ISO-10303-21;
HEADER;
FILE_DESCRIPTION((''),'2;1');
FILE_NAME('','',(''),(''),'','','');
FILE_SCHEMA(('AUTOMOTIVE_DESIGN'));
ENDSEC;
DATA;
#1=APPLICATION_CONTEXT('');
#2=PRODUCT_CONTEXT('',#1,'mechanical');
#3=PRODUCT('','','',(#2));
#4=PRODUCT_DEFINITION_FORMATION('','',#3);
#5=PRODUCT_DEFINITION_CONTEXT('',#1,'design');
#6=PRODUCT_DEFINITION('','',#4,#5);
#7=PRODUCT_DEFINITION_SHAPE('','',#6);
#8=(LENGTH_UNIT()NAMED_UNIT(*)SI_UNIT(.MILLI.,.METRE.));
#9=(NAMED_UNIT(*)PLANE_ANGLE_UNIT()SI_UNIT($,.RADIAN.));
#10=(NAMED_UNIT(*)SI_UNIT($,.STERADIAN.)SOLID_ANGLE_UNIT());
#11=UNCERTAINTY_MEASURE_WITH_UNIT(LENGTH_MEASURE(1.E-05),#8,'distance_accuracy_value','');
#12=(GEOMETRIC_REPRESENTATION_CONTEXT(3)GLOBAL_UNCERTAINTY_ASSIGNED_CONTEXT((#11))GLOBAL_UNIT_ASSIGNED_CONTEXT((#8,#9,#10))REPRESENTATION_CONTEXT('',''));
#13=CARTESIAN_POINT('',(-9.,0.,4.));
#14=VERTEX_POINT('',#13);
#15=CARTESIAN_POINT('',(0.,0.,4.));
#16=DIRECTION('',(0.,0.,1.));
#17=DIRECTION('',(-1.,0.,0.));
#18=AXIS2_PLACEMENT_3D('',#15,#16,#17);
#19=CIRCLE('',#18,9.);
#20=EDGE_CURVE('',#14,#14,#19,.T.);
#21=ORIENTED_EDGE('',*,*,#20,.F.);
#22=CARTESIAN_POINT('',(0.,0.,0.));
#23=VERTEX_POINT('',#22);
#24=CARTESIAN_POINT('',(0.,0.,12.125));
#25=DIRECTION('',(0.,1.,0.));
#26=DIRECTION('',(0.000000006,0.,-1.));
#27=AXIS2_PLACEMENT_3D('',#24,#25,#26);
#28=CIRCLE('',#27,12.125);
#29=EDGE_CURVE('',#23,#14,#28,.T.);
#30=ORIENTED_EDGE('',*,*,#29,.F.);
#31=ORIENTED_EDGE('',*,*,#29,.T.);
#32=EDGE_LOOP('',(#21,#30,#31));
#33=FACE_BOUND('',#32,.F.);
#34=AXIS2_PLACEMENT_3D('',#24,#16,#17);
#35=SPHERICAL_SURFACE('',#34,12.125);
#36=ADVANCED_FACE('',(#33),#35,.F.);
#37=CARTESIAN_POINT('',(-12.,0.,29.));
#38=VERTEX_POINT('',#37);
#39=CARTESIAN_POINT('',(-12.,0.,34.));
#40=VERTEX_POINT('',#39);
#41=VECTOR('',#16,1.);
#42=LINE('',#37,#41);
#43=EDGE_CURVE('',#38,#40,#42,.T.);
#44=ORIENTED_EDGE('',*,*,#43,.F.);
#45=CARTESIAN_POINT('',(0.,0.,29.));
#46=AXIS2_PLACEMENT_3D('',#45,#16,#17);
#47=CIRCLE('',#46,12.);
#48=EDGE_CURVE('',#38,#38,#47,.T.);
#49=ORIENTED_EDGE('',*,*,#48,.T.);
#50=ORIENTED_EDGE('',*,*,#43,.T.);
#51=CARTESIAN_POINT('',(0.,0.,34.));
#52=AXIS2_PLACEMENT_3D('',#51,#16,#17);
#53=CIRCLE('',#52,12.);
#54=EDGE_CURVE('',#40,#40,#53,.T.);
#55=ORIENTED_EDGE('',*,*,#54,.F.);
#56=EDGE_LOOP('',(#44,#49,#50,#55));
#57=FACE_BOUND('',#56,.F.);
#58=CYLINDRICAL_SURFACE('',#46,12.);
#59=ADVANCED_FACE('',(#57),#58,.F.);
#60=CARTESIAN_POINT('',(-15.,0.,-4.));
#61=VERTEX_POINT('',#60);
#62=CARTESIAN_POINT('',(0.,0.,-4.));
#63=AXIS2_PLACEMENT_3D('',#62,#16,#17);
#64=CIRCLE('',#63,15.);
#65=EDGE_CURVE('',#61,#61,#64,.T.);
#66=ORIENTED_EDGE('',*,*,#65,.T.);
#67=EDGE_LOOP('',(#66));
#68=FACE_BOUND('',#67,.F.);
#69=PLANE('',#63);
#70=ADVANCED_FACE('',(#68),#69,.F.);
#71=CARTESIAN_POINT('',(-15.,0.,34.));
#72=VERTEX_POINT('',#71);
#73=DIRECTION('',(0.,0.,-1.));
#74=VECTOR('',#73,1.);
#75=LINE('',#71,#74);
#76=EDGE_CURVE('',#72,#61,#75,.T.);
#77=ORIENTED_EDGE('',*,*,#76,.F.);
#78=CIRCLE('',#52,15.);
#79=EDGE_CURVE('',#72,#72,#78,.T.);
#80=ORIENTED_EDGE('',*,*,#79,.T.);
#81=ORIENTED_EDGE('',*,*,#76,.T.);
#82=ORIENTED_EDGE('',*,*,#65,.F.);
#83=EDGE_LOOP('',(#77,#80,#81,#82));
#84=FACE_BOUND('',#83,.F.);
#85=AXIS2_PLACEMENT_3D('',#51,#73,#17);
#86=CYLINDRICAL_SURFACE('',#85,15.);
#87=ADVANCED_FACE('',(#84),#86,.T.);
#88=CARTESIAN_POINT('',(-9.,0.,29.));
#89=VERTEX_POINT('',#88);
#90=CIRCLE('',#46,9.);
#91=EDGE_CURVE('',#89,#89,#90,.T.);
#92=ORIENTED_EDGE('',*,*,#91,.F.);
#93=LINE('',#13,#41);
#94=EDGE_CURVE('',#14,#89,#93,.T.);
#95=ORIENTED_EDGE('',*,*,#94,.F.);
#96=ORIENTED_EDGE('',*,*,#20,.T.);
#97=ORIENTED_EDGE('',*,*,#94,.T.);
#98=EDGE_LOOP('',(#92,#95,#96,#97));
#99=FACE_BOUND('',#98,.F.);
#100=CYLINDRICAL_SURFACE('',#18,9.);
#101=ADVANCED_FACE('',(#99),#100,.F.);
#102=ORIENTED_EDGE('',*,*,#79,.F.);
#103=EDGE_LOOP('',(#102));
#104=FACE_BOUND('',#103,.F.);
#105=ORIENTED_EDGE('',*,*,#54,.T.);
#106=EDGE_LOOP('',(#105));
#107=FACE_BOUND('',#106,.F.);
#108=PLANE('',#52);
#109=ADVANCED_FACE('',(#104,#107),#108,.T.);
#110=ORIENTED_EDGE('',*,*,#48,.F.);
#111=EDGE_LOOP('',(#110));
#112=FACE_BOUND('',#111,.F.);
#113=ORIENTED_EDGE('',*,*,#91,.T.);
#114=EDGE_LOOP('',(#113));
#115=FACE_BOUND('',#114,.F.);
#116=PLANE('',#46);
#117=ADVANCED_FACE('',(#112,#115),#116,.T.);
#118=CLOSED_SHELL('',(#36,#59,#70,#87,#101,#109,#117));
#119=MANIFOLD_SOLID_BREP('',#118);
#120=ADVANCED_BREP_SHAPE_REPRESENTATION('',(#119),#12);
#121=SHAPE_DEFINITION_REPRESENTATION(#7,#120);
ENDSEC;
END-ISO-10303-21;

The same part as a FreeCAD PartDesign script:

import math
import FreeCAD as App
import Part
import Sketcher

doc = App.newDocument("Part")
body = doc.addObject("PartDesign::Body", "Body")

# Sketch on XZ plane
sketch1 = doc.addObject("Sketcher::SketchObject", "Sketch")
body.addObject(sketch1)
sketch1.AttachmentSupport = (doc.XZ_Plane, [""])
sketch1.MapMode = "FlatFace"
sketch1.addGeometry(Part.LineSegment(App.Vector(-15, -4, 0), App.Vector(0, -4, 0)), False)
sketch1.addGeometry(Part.LineSegment(App.Vector(0, -4, 0), App.Vector(0, 0, 0)), False)
sketch1.addGeometry(Part.ArcOfCircle(Part.Circle(App.Vector(0, 12.1, 0), App.Vector(0, 0, 1), 12.1), math.radians(-138), math.radians(-90)), False)
sketch1.addGeometry(Part.LineSegment(App.Vector(-9, 4, 0), App.Vector(-9, 29, 0)), False)
sketch1.addGeometry(Part.LineSegment(App.Vector(-9, 29, 0), App.Vector(-12, 29, 0)), False)
sketch1.addGeometry(Part.LineSegment(App.Vector(-12, 29, 0), App.Vector(-12, 34, 0)), False)
sketch1.addGeometry(Part.LineSegment(App.Vector(-12, 34, 0), App.Vector(-15, 34, 0)), False)
sketch1.addGeometry(Part.LineSegment(App.Vector(-15, 34, 0), App.Vector(-15, -4, 0)), False)
sketch1.addConstraint(Sketcher.Constraint("Coincident", 0, 2, 1, 1))
sketch1.addConstraint(Sketcher.Constraint("Coincident", 1, 2, 2, 2))
sketch1.addConstraint(Sketcher.Constraint("Coincident", 2, 1, 3, 1))
sketch1.addConstraint(Sketcher.Constraint("Coincident", 3, 2, 4, 1))
sketch1.addConstraint(Sketcher.Constraint("Coincident", 4, 2, 5, 1))
sketch1.addConstraint(Sketcher.Constraint("Coincident", 5, 2, 6, 1))
sketch1.addConstraint(Sketcher.Constraint("Coincident", 6, 2, 7, 1))
sketch1.addConstraint(Sketcher.Constraint("Coincident", 7, 2, 0, 1))
sketch1.addConstraint(Sketcher.Constraint("Horizontal", 0))
sketch1.addConstraint(Sketcher.Constraint("Vertical", 1))
sketch1.addConstraint(Sketcher.Constraint("Vertical", 3))
sketch1.addConstraint(Sketcher.Constraint("Horizontal", 4))
sketch1.addConstraint(Sketcher.Constraint("Vertical", 5))
sketch1.addConstraint(Sketcher.Constraint("Horizontal", 6))
sketch1.addConstraint(Sketcher.Constraint("Vertical", 7))
sketch1.addConstraint(Sketcher.Constraint("Coincident", 1, 2, -1, 1))
sketch1.addConstraint(Sketcher.Constraint("PointOnObject", 2, 3, -2))
sketch1.addConstraint(Sketcher.Constraint("Equal", 4, 6))
sketch1.addConstraint(Sketcher.Constraint("DistanceX", 0, 1, 0, 2, 15.0))
sketch1.addConstraint(Sketcher.Constraint("DistanceX", 4, 2, 4, 1, 3.0))
sketch1.addConstraint(Sketcher.Constraint("DistanceY", 1, 1, 1, 2, 4.0))
sketch1.addConstraint(Sketcher.Constraint("DistanceY", 3, 1, 3, 2, 25.0))
sketch1.addConstraint(Sketcher.Constraint("DistanceY", 5, 1, 5, 2, 5.0))
sketch1.addConstraint(Sketcher.Constraint("DistanceY", 7, 2, 7, 1, 38.0))
revolution = doc.addObject("PartDesign::Revolution", "Revolution")
body.addObject(revolution)
revolution.Profile = sketch1
revolution.ReferenceAxis = (sketch1, ["V_Axis"])
revolution.Angle = 360

doc.recompute()
